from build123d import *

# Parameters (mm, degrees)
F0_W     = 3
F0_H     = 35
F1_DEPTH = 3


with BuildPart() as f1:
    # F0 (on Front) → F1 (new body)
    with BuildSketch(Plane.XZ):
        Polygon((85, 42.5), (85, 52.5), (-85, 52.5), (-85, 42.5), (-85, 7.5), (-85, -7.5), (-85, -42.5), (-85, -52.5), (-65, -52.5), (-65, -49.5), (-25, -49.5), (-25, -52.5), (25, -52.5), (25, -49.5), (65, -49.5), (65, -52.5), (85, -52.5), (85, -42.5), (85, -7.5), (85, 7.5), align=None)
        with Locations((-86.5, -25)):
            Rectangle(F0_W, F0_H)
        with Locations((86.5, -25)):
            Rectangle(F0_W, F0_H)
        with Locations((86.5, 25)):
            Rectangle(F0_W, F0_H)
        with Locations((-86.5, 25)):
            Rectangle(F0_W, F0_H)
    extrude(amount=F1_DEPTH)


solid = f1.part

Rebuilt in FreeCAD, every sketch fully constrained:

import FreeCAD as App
import Part
import Sketcher

V = App.Vector


def add_polygon(sketch, points):
    """Adds a closed chain of lines whose ends are joined by coincident constraints."""
    first, n = sketch.GeometryCount, len(points)
    for a, b in zip(points, points[1:] + points[:1]):
        sketch.addGeometry(Part.LineSegment(App.Vector(*a, 0), App.Vector(*b, 0)), False)
    for i in range(n):
        sketch.addConstraint(Sketcher.Constraint("Coincident", first + i, 2, first + (i + 1) % n, 1))

doc = App.newDocument("Part")
params = doc.addObject("Spreadsheet::Sheet", "Params")
for row, (alias, value) in enumerate([
    ("sketch1_width", "170 mm"),
    ("sketch1_width2", "3 mm"),
    ("sketch1_width3", "20 mm"),
    ("sketch1_width4", "40 mm"),
    ("sketch1_height", "10 mm"),
    ("pad1_length", "3 mm"),
], start=1):
    params.set(f"A{row}", alias)
    params.set(f"B{row}", "=" + value)
    params.setAlias(f"B{row}", alias)

body = doc.addObject("PartDesign::Body", "Body")

sketch1 = body.newObject("Sketcher::SketchObject", "Sketch")
sketch1.AttachmentSupport = (doc.getObject("XZ_Plane"), [""])
sketch1.MapMode = "FlatFace"
add_polygon(sketch1, [(85, 52.5), (-85, 52.5), (-85, 42.5), (-88, 42.5), (-88, 7.5), (-85, 7.5), (-85, -7.5), (-88, -7.5), (-88, -42.5), (-85, -42.5), (-85, -52.5), (-65, -52.5), (-65, -49.5), (-25, -49.5), (-25, -52.5), (25, -52.5), (25, -49.5), (65, -49.5), (65, -52.5), (85, -52.5), (85, -42.5), (88, -42.5), (88, -7.5), (85, -7.5), (85, 7.5), (88, 7.5), (88, 42.5), (85, 42.5)])
sketch1.addConstraint(Sketcher.Constraint("Horizontal", 0))
sketch1.addConstraint(Sketcher.Constraint("Vertical", 1))
sketch1.addConstraint(Sketcher.Constraint("Horizontal", 2))
sketch1.addConstraint(Sketcher.Constraint("Vertical", 3))
sketch1.addConstraint(Sketcher.Constraint("Horizontal", 4))
sketch1.addConstraint(Sketcher.Constraint("Vertical", 5))
sketch1.addConstraint(Sketcher.Constraint("Horizontal", 6))
sketch1.addConstraint(Sketcher.Constraint("Vertical", 7))
sketch1.addConstraint(Sketcher.Constraint("Horizontal", 8))
sketch1.addConstraint(Sketcher.Constraint("Vertical", 9))
sketch1.addConstraint(Sketcher.Constraint("Horizontal", 10))
sketch1.addConstraint(Sketcher.Constraint("Vertical", 11))
sketch1.addConstraint(Sketcher.Constraint("Horizontal", 12))
sketch1.addConstraint(Sketcher.Constraint("Vertical", 13))
sketch1.addConstraint(Sketcher.Constraint("Horizontal", 14))
sketch1.addConstraint(Sketcher.Constraint("Vertical", 15))
sketch1.addConstraint(Sketcher.Constraint("Horizontal", 16))
sketch1.addConstraint(Sketcher.Constraint("Vertical", 17))
sketch1.addConstraint(Sketcher.Constraint("Horizontal", 18))
sketch1.addConstraint(Sketcher.Constraint("Vertical", 19))
sketch1.addConstraint(Sketcher.Constraint("Horizontal", 20))
sketch1.addConstraint(Sketcher.Constraint("Vertical", 21))
sketch1.addConstraint(Sketcher.Constraint("Horizontal", 22))
sketch1.addConstraint(Sketcher.Constraint("Vertical", 23))
sketch1.addConstraint(Sketcher.Constraint("Horizontal", 24))
sketch1.addConstraint(Sketcher.Constraint("Vertical", 25))
sketch1.addConstraint(Sketcher.Constraint("Horizontal", 26))
sketch1.addConstraint(Sketcher.Constraint("Vertical", 27))
sketch1.addConstraint(Sketcher.Constraint("Symmetric", 0, 2, 18, 2, -1, 1))
sketch1.addConstraint(Sketcher.Constraint("Symmetric", 2, 2, 20, 2, -1, 1))
sketch1.addConstraint(Sketcher.Constraint("Symmetric", 4, 2, 22, 2, -1, 1))
sketch1.addConstraint(Sketcher.Constraint("Symmetric", 6, 2, 24, 2, -1, 1))
sketch1.addConstraint(Sketcher.Constraint("Symmetric", 8, 2, 26, 2, -1, 1))
sketch1.addConstraint(Sketcher.Constraint("Symmetric", 12, 2, 15, 2, -2))
sketch1.addConstraint(Sketcher.Constraint("Symmetric", 10, 2, 17, 2, -2))
sketch1.addConstraint(Sketcher.Constraint("Symmetric", 8, 2, 19, 2, -2))
sketch1.addConstraint(Sketcher.Constraint("Symmetric", 6, 2, 21, 2, -2))
sketch1.addConstraint(Sketcher.Constraint("Horizontal", 10, 2, 13, 2))
sketch1.addConstraint(Sketcher.Constraint("Vertical", 1, 2, 4, 2))
sketch1.addConstraint(Sketcher.Constraint("Equal", 26, 11))
sketch1.addConstraint(Sketcher.Constraint("DistanceX", 0, 2, 0, 1, 170.0))
sketch1.addConstraint(Sketcher.Constraint("DistanceX", 2, 2, 2, 1, 3.0))
sketch1.addConstraint(Sketcher.Constraint("DistanceX", 10, 1, 10, 2, 20.0))
sketch1.addConstraint(Sketcher.Constraint("DistanceX", 12, 1, 12, 2, 40.0))
sketch1.addConstraint(Sketcher.Constraint("DistanceY", 1, 2, 1, 1, 10.0))
sketch1.addConstraint(Sketcher.Constraint("DistanceY", 3, 2, 3, 1, 35.0))
sketch1.addConstraint(Sketcher.Constraint("DistanceY", 5, 2, 5, 1, 15.0))
sketch1.setExpression("Constraints[68]", "Params.sketch1_width")
sketch1.setExpression("Constraints[69]", "Params.sketch1_width2")
sketch1.setExpression("Constraints[70]", "Params.sketch1_width3")
sketch1.setExpression("Constraints[71]", "Params.sketch1_width4")
sketch1.setExpression("Constraints[72]", "Params.sketch1_height")
pad1 = body.newObject("PartDesign::Pad", "Pad")
pad1.Profile = sketch1
pad1.setExpression("Length", "Params.pad1_length")

doc.recompute()
